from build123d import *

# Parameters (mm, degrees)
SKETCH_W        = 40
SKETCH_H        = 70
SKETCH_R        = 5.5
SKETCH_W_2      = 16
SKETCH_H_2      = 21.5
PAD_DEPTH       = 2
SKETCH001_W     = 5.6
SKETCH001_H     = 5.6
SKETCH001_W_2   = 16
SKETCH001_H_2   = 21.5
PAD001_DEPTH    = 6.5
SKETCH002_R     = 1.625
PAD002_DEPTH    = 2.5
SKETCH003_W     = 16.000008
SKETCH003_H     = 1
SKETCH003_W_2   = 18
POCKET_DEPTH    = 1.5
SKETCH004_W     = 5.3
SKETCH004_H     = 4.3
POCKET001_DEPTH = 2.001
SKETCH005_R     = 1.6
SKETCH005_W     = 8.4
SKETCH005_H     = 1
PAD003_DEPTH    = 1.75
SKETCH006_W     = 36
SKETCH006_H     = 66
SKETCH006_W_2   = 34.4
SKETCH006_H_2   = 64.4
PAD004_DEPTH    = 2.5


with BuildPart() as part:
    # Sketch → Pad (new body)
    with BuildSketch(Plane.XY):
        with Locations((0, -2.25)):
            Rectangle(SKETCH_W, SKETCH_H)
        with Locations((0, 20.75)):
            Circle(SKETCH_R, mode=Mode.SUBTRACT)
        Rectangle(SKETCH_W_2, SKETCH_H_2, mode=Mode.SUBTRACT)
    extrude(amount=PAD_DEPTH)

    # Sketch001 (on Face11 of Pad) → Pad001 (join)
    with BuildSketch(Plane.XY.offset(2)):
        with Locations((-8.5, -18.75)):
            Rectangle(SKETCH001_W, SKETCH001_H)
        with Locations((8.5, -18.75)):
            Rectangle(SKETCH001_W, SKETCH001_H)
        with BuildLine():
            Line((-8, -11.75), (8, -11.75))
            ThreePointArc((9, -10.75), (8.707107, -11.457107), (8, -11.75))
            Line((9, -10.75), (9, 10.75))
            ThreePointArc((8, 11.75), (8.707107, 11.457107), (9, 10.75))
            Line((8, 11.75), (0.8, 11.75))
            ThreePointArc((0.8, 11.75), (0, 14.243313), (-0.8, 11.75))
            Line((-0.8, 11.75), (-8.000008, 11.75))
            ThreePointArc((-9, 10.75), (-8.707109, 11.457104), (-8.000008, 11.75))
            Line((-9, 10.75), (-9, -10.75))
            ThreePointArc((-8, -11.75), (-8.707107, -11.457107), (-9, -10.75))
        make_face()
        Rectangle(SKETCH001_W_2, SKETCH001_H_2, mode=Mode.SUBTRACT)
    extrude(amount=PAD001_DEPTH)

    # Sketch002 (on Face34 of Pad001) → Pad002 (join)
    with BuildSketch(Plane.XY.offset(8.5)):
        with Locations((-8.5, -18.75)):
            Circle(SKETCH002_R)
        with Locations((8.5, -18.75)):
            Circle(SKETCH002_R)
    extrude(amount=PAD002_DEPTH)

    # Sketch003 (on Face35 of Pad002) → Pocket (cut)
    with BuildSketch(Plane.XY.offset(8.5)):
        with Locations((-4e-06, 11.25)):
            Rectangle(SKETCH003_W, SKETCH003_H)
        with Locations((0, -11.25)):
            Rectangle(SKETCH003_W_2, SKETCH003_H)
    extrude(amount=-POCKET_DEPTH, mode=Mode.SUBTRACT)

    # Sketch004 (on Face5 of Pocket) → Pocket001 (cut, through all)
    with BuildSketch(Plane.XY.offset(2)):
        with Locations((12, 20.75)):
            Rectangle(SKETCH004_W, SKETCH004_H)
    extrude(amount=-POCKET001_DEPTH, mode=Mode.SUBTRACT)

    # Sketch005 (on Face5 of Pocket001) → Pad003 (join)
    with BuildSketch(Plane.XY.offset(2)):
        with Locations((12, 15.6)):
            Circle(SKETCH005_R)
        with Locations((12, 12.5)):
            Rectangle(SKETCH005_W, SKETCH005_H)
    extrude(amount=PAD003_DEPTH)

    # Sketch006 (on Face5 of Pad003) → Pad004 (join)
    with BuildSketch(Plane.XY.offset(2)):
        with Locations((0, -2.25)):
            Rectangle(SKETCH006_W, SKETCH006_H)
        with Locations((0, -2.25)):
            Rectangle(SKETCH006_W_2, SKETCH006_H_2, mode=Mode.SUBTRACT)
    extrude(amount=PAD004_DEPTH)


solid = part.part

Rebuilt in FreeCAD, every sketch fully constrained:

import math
import FreeCAD as App
import Part
import Sketcher
from FreeCAD import Vector
Q = App.Units.Quantity

doc = App.newDocument("Part")
body = doc.addObject("PartDesign::Body", "Body")

# Sketch on XY plane
sketch1 = doc.addObject("Sketcher::SketchObject", "Sketch")
body.addObject(sketch1)
sketch1.AttachmentSupport = (doc.XY_Plane, [""])
sketch1.MapMode = "FlatFace"
sketch1.addGeometry([
    Part.LineSegment(Vector(-20, 33, 0), Vector(-20, -37, 0)),  # 0
    Part.LineSegment(Vector(-20, -37, 0), Vector(20, -37, 0)),  # 1
    Part.LineSegment(Vector(20, -37, 0), Vector(20, 33, 0)),  # 2
    Part.LineSegment(Vector(20, 33, 0), Vector(-20, 33, 0)),  # 3
    Part.LineSegment(Vector(8, -11, 0), Vector(-8, -11, 0)),  # 4
    Part.LineSegment(Vector(-8, -11, 0), Vector(-8, 11, 0)),  # 5
    Part.LineSegment(Vector(-8, 11, 0), Vector(8, 11, 0)),  # 6
    Part.LineSegment(Vector(8, 11, 0), Vector(8, -11, 0)),  # 7
    Part.Circle(Vector(0, 21, 0), Vector(0, 0, 1), 6),  # 8
], False)
sketch1.addConstraint([
    Sketcher.Constraint("Coincident", 0, 2, 1, 1),
    Sketcher.Constraint("Coincident", 1, 2, 2, 1),
    Sketcher.Constraint("Coincident", 2, 2, 3, 1),
    Sketcher.Constraint("Coincident", 3, 2, 0, 1),
    Sketcher.Constraint("Coincident", 4, 2, 5, 1),
    Sketcher.Constraint("Coincident", 5, 2, 6, 1),
    Sketcher.Constraint("Coincident", 6, 2, 7, 1),
    Sketcher.Constraint("Coincident", 7, 2, 4, 1),
    Sketcher.Constraint("Vertical", 0),
    Sketcher.Constraint("Horizontal", 1),
    Sketcher.Constraint("Vertical", 2),
    Sketcher.Constraint("Horizontal", 3),
    Sketcher.Constraint("Horizontal", 4),
    Sketcher.Constraint("Vertical", 5),
    Sketcher.Constraint("Horizontal", 6),
    Sketcher.Constraint("Vertical", 7),
    Sketcher.Constraint("Symmetric", 4, 2, 6, 2, -1, 1),
    Sketcher.Constraint("PointOnObject", 8, 3, -2),
    Sketcher.Constraint("Diameter", 8, Q("11 mm")),
    Sketcher.Constraint("DistanceX", 1, 1, 1, 2, Q("40 mm")),
    Sketcher.Constraint("DistanceX", 4, 2, 4, 1, Q("16 mm")),
    Sketcher.Constraint("DistanceY", 0, 2, 0, 1, Q("70 mm")),
    Sketcher.Constraint("DistanceY", 5, 1, 5, 2, Q("21.5 mm")),
    Sketcher.Constraint("DistanceX", 0, 2, -1, 1, Q("20 mm")),
    Sketcher.Constraint("DistanceY", 0, 2, 8, 3, Q("58 mm")),
    Sketcher.Constraint("DistanceY", 5, 2, 8, 3, Q("10 mm")),
])
pad1 = doc.addObject("PartDesign::Pad", "Pad")
body.addObject(pad1)
pad1.Profile = sketch1
pad1.Length = 2

# Sketch on XY plane
sketch2 = doc.addObject("Sketcher::SketchObject", "Sketch001")
body.addObject(sketch2)
sketch2.AttachmentSupport = (doc.XY_Plane, [""])
sketch2.MapMode = "FlatFace"
sketch2.AttachmentOffset = App.Placement(Vector(0, 0, 2), App.Rotation())
sketch2.addGeometry([
    Part.LineSegment(Vector(-11.3, -15.9, 0), Vector(-11.3, -21.6, 0)),  # 0
    Part.LineSegment(Vector(-11.3, -21.6, 0), Vector(-5.7, -21.6, 0)),  # 1
    Part.LineSegment(Vector(-5.7, -21.6, 0), Vector(-5.7, -15.9, 0)),  # 2
    Part.LineSegment(Vector(-5.7, -15.9, 0), Vector(-11.3, -15.9, 0)),  # 3
    Part.LineSegment(Vector(5.7, -15.9, 0), Vector(5.7, -21.6, 0)),  # 4
    Part.LineSegment(Vector(5.7, -21.6, 0), Vector(11.3, -21.6, 0)),  # 5
    Part.LineSegment(Vector(11.3, -21.6, 0), Vector(11.3, -15.9, 0)),  # 6
    Part.LineSegment(Vector(11.3, -15.9, 0), Vector(5.7, -15.9, 0)),  # 7
    Part.LineSegment(Vector(-8, -11.8, 0), Vector(8, -11.8, 0)),  # 8
    Part.ArcOfCircle(Part.Circle(Vector(8, -10.8, 0), Vector(0, 0, 1), 1), math.radians(-90), math.radians(0)),  # 9
    Part.LineSegment(Vector(9, -10.8, 0), Vector(9, 10.8, 0)),  # 10
    Part.ArcOfCircle(Part.Circle(Vector(8, 10.8, 0), Vector(0, 0, 1), 1), math.radians(0), math.radians(90)),  # 11
    Part.LineSegment(Vector(8, 11.8, 0), Vector(0.8, 11.8, 0)),  # 12
    Part.ArcOfCircle(Part.Circle(Vector(0, 12.9, 0), Vector(0, 0, 1), 1.4), math.radians(-54), math.radians(234)),  # 13
    Part.LineSegment(Vector(-0.8, 11.8, 0), Vector(-8, 11.8, 0)),  # 14
    Part.ArcOfCircle(Part.Circle(Vector(-8, 10.7, 0), Vector(0, 0, 1), 1), math.radians(90), math.radians(180)),  # 15
    Part.LineSegment(Vector(-9, 10.8, 0), Vector(-9, -10.8, 0)),  # 16
    Part.ArcOfCircle(Part.Circle(Vector(-8, -10.8, 0), Vector(0, 0, 1), 1), math.radians(180), math.radians(270)),  # 17
    Part.LineSegment(Vector(8, -10.8, 0), Vector(-8, -10.8, 0)),  # 18
    Part.LineSegment(Vector(-8, -10.8, 0), Vector(-8, 10.8, 0)),  # 19
    Part.LineSegment(Vector(-8, 10.8, 0), Vector(8, 10.8, 0)),  # 20
    Part.LineSegment(Vector(8, 10.8, 0), Vector(8, -10.8, 0)),  # 21
], False)
sketch2.addConstraint([
    Sketcher.Constraint("Coincident", 0, 2, 1, 1),
    Sketcher.Constraint("Coincident", 1, 2, 2, 1),
    Sketcher.Constraint("Coincident", 2, 2, 3, 1),
    Sketcher.Constraint("Coincident", 3, 2, 0, 1),
    Sketcher.Constraint("Coincident", 4, 2, 5, 1),
    Sketcher.Constraint("Coincident", 5, 2, 6, 1),
    Sketcher.Constraint("Coincident", 6, 2, 7, 1),
    Sketcher.Constraint("Coincident", 7, 2, 4, 1),
    Sketcher.Constraint("Tangent", 8, 2, 9, 1),
    Sketcher.Constraint("Tangent", 9, 2, 10, 1),
    Sketcher.Constraint("Tangent", 10, 2, 11, 1),
    Sketcher.Constraint("Tangent", 11, 2, 12, 1),
    Sketcher.Constraint("Coincident", 12, 2, 13, 1),
    Sketcher.Constraint("Coincident", 13, 2, 14, 1),
    Sketcher.Constraint("Coincident", 14, 2, 15, 1),
    Sketcher.Constraint("Tangent", 15, 2, 16, 1),
    Sketcher.Constraint("Tangent", 16, 2, 17, 1),
    Sketcher.Constraint("Tangent", 17, 2, 8, 1),
    Sketcher.Constraint("Coincident", 18, 2, 19, 1),
    Sketcher.Constraint("Coincident", 19, 2, 20, 1),
    Sketcher.Constraint("Coincident", 20, 2, 21, 1),
    Sketcher.Constraint("Coincident", 21, 2, 18, 1),
    Sketcher.Constraint("Vertical", 0),
    Sketcher.Constraint("Horizontal", 1),
    Sketcher.Constraint("Vertical", 2),
    Sketcher.Constraint("Horizontal", 3),
    Sketcher.Constraint("Vertical", 4),
    Sketcher.Constraint("Horizontal", 5),
    Sketcher.Constraint("Vertical", 6),
    Sketcher.Constraint("Horizontal", 7),
    Sketcher.Constraint("Horizontal", 8),
    Sketcher.Constraint("Vertical", 10),
    Sketcher.Constraint("Horizontal", 12),
    Sketcher.Constraint("Horizontal", 14),
    Sketcher.Constraint("Vertical", 16),
    Sketcher.Constraint("Horizontal", 18),
    Sketcher.Constraint("Vertical", 19),
    Sketcher.Constraint("Horizontal", 20),
    Sketcher.Constraint("Vertical", 21),
    Sketcher.Constraint("Coincident", 18, 2, 17, 3),
    Sketcher.Constraint("Coincident", 19, 2, 15, 3),
    Sketcher.Constraint("Coincident", 20, 2, 11, 3),
    Sketcher.Constraint("Coincident", 21, 2, 9, 3),
    Sketcher.Constraint("Symmetric", 9, 3, 15, 3, -1, 1),
    Sketcher.Constraint("Symmetric", 1, 2, 4, 2, -2),
    Sketcher.Constraint("Symmetric", 3, 2, 6, 2, -2),
    Sketcher.Constraint("PointOnObject", 13, 3, -2),
    Sketcher.Constraint("Equal", 7, 0),
    Sketcher.Constraint("Radius", 9, Q("0.999999 mm")),
    Sketcher.Constraint("DistanceX", 8, 1, 8, 2, Q("16 mm")),
    Sketcher.Constraint("DistanceX", 1, 1, 1, 2, Q("5.6 mm")),
    Sketcher.Constraint("DistanceX", 12, 2, 12, 1, Q("7.2 mm")),
    Sketcher.Constraint("DistanceY", 10, 1, 10, 2, Q("21.5 mm")),
    Sketcher.Constraint("Radius", 13, Q("1.375 mm")),
    Sketcher.Constraint("DistanceX", 0, 2, 4, 2, Q("17 mm")),
    Sketcher.Constraint("DistanceY", 0, 2, 17, 3, Q("10.799999 mm")),
    Sketcher.Constraint("DistanceX", 14, 2, 14, 1, Q("7.200008 mm")),
])
pad2 = doc.addObject("PartDesign::Pad", "Pad001")
body.addObject(pad2)
pad2.Profile = sketch2
pad2.Length = 6.5

# Sketch on XY plane
sketch3 = doc.addObject("Sketcher::SketchObject", "Sketch002")
body.addObject(sketch3)
sketch3.AttachmentSupport = (doc.XY_Plane, [""])
sketch3.MapMode = "FlatFace"
sketch3.AttachmentOffset = App.Placement(Vector(0, 0, 8.5), App.Rotation())
sketch3.addGeometry([
    Part.Circle(Vector(-8.5, -18.8, 0), Vector(0, 0, 1), 1.6),
    Part.Circle(Vector(8.5, -18.8, 0), Vector(0, 0, 1), 1.6),
], False)
sketch3.addConstraint([
    Sketcher.Constraint("Equal", 0, 1),
    Sketcher.Constraint("Symmetric", 0, 3, 1, 3, -2),
    Sketcher.Constraint("Diameter", 0, Q("3.25 mm")),
    Sketcher.Constraint("DistanceX", 0, 3, 1, 3, Q("17 mm")),
    Sketcher.Constraint("DistanceY", 0, 3, -1, 1, Q("18.75 mm")),
])
pad3 = doc.addObject("PartDesign::Pad", "Pad002")
body.addObject(pad3)
pad3.Profile = sketch3
pad3.Length = 2.5

# Sketch on XY plane
sketch4 = doc.addObject("Sketcher::SketchObject", "Sketch003")
body.addObject(sketch4)
sketch4.AttachmentSupport = (doc.XY_Plane, [""])
sketch4.MapMode = "FlatFace"
sketch4.AttachmentOffset = App.Placement(Vector(0, 0, 8.5), App.Rotation())
sketch4.addGeometry([
    Part.LineSegment(Vector(-8, 11.8, 0), Vector(-8, 10.8, 0)),  # 0
    Part.LineSegment(Vector(-8, 10.8, 0), Vector(8, 10.8, 0)),  # 1
    Part.LineSegment(Vector(8, 10.8, 0), Vector(8, 11.8, 0)),  # 2
    Part.LineSegment(Vector(8, 11.8, 0), Vector(-8, 11.8, 0)),  # 3
    Part.LineSegment(Vector(-9, -10.8, 0), Vector(-9, -11.8, 0)),  # 4
    Part.LineSegment(Vector(-9, -11.8, 0), Vector(9, -11.8, 0)),  # 5
    Part.LineSegment(Vector(9, -11.8, 0), Vector(9, -10.8, 0)),  # 6
    Part.LineSegment(Vector(9, -10.8, 0), Vector(-9, -10.8, 0)),  # 7
], False)
sketch4.addConstraint([
    Sketcher.Constraint("Coincident", 0, 2, 1, 1),
    Sketcher.Constraint("Coincident", 1, 2, 2, 1),
    Sketcher.Constraint("Coincident", 2, 2, 3, 1),
    Sketcher.Constraint("Coincident", 3, 2, 0, 1),
    Sketcher.Constraint("Coincident", 4, 2, 5, 1),
    Sketcher.Constraint("Coincident", 5, 2, 6, 1),
    Sketcher.Constraint("Coincident", 6, 2, 7, 1),
    Sketcher.Constraint("Coincident", 7, 2, 4, 1),
    Sketcher.Constraint("Vertical", 0),
    Sketcher.Constraint("Horizontal", 1),
    Sketcher.Constraint("Vertical", 2),
    Sketcher.Constraint("Horizontal", 3),
    Sketcher.Constraint("Vertical", 4),
    Sketcher.Constraint("Horizontal", 5),
    Sketcher.Constraint("Vertical", 6),
    Sketcher.Constraint("Horizontal", 7),
    Sketcher.Constraint("Equal", 2, 4),
    Sketcher.Constraint("DistanceX", 5, 1, 5, 2, Q("18 mm")),
    Sketcher.Constraint("DistanceY", 0, 2, 0, 1, Q("1 mm")),
    Sketcher.Constraint("DistanceX", -1, 1, 1, 2, Q("8 mm")),
    Sketcher.Constraint("DistanceX", 4, 2, -1, 1, Q("9 mm")),
    Sketcher.Constraint("DistanceY", 4, 2, 0, 2, Q("22.5 mm")),
    Sketcher.Constraint("DistanceY", -1, 1, 0, 2, Q("10.75 mm")),
    Sketcher.Constraint("DistanceX", 1, 1, 1, 2, Q("16.000008 mm")),
])
pocket1 = doc.addObject("PartDesign::Pocket", "Pocket")
body.addObject(pocket1)
pocket1.Profile = sketch4
pocket1.Length = 1.5

# Sketch on XY plane
sketch5 = doc.addObject("Sketcher::SketchObject", "Sketch004")
body.addObject(sketch5)
sketch5.AttachmentSupport = (doc.XY_Plane, [""])
sketch5.MapMode = "FlatFace"
sketch5.AttachmentOffset = App.Placement(Vector(0, 0, 2), App.Rotation())
sketch5.addGeometry([
    Part.LineSegment(Vector(9.3, 22.9, 0), Vector(9.3, 18.6, 0)),
    Part.LineSegment(Vector(9.3, 18.6, 0), Vector(14.7, 18.6, 0)),
    Part.LineSegment(Vector(14.7, 18.6, 0), Vector(14.7, 22.9, 0)),
    Part.LineSegment(Vector(14.7, 22.9, 0), Vector(9.3, 22.9, 0)),
], False)
sketch5.addConstraint([
    Sketcher.Constraint("Coincident", 0, 2, 1, 1),
    Sketcher.Constraint("Coincident", 1, 2, 2, 1),
    Sketcher.Constraint("Coincident", 2, 2, 3, 1),
    Sketcher.Constraint("Coincident", 3, 2, 0, 1),
    Sketcher.Constraint("Vertical", 0),
    Sketcher.Constraint("Horizontal", 1),
    Sketcher.Constraint("Vertical", 2),
    Sketcher.Constraint("Horizontal", 3),
    Sketcher.Constraint("DistanceX", 1, 1, 1, 2, Q("5.3 mm")),
    Sketcher.Constraint("DistanceY", 0, 2, 0, 1, Q("4.3 mm")),
    Sketcher.Constraint("DistanceY", -1, 1, 0, 2, Q("18.6 mm")),
    Sketcher.Constraint("DistanceX", -1, 1, 0, 2, Q("9.35 mm")),
])
pocket2 = doc.addObject("PartDesign::Pocket", "Pocket001")
body.addObject(pocket2)
pocket2.Profile = sketch5
pocket2.Type = "ThroughAll"

# Sketch on XY plane
sketch6 = doc.addObject("Sketcher::SketchObject", "Sketch005")
body.addObject(sketch6)
sketch6.AttachmentSupport = (doc.XY_Plane, [""])
sketch6.MapMode = "FlatFace"
sketch6.AttachmentOffset = App.Placement(Vector(0, 0, 2), App.Rotation())
sketch6.addGeometry([
    Part.Circle(Vector(12, 15.6, 0), Vector(0, 0, 1), 1.6),  # 0
    Part.LineSegment(Vector(7.8, 13, 0), Vector(7.8, 12, 0)),  # 1
    Part.LineSegment(Vector(7.8, 12, 0), Vector(16.2, 12, 0)),  # 2
    Part.LineSegment(Vector(16.2, 12, 0), Vector(16.2, 13, 0)),  # 3
    Part.LineSegment(Vector(16.2, 13, 0), Vector(7.8, 13, 0)),  # 4
], False)
sketch6.addConstraint([
    Sketcher.Constraint("Coincident", 1, 2, 2, 1),
    Sketcher.Constraint("Coincident", 2, 2, 3, 1),
    Sketcher.Constraint("Coincident", 3, 2, 4, 1),
    Sketcher.Constraint("Coincident", 4, 2, 1, 1),
    Sketcher.Constraint("Vertical", 1),
    Sketcher.Constraint("Horizontal", 2),
    Sketcher.Constraint("Vertical", 3),
    Sketcher.Constraint("Horizontal", 4),
    Sketcher.Constraint("Diameter", 0, Q("3.2 mm")),
    Sketcher.Constraint("DistanceY", 1, 2, 1, 1, Q("1 mm")),
    Sketcher.Constraint("DistanceX", 2, 1, 2, 2, Q("8.4 mm")),
    Sketcher.Constraint("DistanceX", -1, 1, 0, 3, Q("12 mm")),
    Sketcher.Constraint("DistanceY", -1, 1, 1, 2, Q("12 mm")),
    Sketcher.Constraint("DistanceY", -1, 1, 0, 3, Q("15.6 mm")),
    Sketcher.Constraint("DistanceX", -1, 1, 1, 2, Q("7.8 mm")),
])
pad4 = doc.addObject("PartDesign::Pad", "Pad003")
body.addObject(pad4)
pad4.Profile = sketch6
pad4.Length = 1.75

# Sketch on XY plane
sketch7 = doc.addObject("Sketcher::SketchObject", "Sketch006")
body.addObject(sketch7)
sketch7.AttachmentSupport = (doc.XY_Plane, [""])
sketch7.MapMode = "FlatFace"
sketch7.AttachmentOffset = App.Placement(Vector(0, 0, 2), App.Rotation())
sketch7.addGeometry([
    Part.LineSegment(Vector(-18, 31, 0), Vector(-18, -35, 0)),  # 0
    Part.LineSegment(Vector(-18, -35, 0), Vector(18, -35, 0)),  # 1
    Part.LineSegment(Vector(18, -35, 0), Vector(18, 31, 0)),  # 2
    Part.LineSegment(Vector(18, 31, 0), Vector(-18, 31, 0)),  # 3
    Part.LineSegment(Vector(17, -34, 0), Vector(-17, -34, 0)),  # 4
    Part.LineSegment(Vector(-17, -34, 0), Vector(-17, 30, 0)),  # 5
    Part.LineSegment(Vector(-17, 30, 0), Vector(17, 30, 0)),  # 6
    Part.LineSegment(Vector(17, 30, 0), Vector(17, -34, 0)),  # 7
], False)
sketch7.addConstraint([
    Sketcher.Constraint("Coincident", 0, 2, 1, 1),
    Sketcher.Constraint("Coincident", 1, 2, 2, 1),
    Sketcher.Constraint("Coincident", 2, 2, 3, 1),
    Sketcher.Constraint("Coincident", 3, 2, 0, 1),
    Sketcher.Constraint("Coincident", 4, 2, 5, 1),
    Sketcher.Constraint("Coincident", 5, 2, 6, 1),
    Sketcher.Constraint("Coincident", 6, 2, 7, 1),
    Sketcher.Constraint("Coincident", 7, 2, 4, 1),
    Sketcher.Constraint("Vertical", 0),
    Sketcher.Constraint("Horizontal", 1),
    Sketcher.Constraint("Vertical", 2),
    Sketcher.Constraint("Horizontal", 3),
    Sketcher.Constraint("Horizontal", 4),
    Sketcher.Constraint("Vertical", 5),
    Sketcher.Constraint("Horizontal", 6),
    Sketcher.Constraint("Vertical", 7),
    Sketcher.Constraint("DistanceX", 1, 1, 1, 2, Q("36 mm")),
    Sketcher.Constraint("DistanceY", 0, 2, 0, 1, Q("66 mm")),
    Sketcher.Constraint("DistanceX", 4, 2, 4, 1, Q("34.4 mm")),
    Sketcher.Constraint("DistanceY", 5, 1, 5, 2, Q("64.4 mm")),
    Sketcher.Constraint("DistanceX", 0, 2, -1, 1, Q("18 mm")),
    Sketcher.Constraint("DistanceX", 4, 2, -1, 1, Q("17.2 mm")),
    Sketcher.Constraint("DistanceY", 0, 2, 4, 2, Q("0.8 mm")),
    Sketcher.Constraint("DistanceY", 0, 2, -1, 1, Q("35.25 mm")),
])
pad5 = doc.addObject("PartDesign::Pad", "Pad004")
body.addObject(pad5)
pad5.Profile = sketch7
pad5.Length = 2.5

doc.recompute()
